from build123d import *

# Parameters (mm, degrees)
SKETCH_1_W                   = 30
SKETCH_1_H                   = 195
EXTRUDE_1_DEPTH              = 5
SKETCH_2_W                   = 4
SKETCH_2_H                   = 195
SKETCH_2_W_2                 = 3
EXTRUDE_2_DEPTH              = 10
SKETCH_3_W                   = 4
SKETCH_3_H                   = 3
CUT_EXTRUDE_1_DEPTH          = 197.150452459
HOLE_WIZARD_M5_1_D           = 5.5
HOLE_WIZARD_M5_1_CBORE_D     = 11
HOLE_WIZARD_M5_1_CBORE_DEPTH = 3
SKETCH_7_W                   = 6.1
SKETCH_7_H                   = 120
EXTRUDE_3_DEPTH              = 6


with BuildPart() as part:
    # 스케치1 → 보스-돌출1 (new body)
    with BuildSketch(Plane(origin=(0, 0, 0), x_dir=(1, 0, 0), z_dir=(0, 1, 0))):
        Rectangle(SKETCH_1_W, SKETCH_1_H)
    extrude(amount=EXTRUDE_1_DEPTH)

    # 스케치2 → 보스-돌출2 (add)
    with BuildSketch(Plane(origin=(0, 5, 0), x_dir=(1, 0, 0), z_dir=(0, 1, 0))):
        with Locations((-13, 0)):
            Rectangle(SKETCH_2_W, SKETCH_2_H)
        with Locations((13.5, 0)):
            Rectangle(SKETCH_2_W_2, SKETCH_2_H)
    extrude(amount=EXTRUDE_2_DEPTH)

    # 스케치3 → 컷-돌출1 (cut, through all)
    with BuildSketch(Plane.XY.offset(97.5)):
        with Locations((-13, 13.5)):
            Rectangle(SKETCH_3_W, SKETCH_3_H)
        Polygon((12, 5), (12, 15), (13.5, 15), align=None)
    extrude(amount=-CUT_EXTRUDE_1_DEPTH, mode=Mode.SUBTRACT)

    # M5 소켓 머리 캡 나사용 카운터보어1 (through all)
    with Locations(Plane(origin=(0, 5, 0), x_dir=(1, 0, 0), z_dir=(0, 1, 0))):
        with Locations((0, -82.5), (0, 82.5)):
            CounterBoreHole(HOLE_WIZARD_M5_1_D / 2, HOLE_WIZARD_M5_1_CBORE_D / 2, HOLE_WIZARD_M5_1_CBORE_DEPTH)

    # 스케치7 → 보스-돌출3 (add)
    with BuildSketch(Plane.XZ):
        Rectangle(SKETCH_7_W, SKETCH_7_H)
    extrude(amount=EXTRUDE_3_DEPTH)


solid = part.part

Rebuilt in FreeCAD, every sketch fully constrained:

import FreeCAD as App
import Part
import Sketcher
from FreeCAD import Vector

doc = App.newDocument("Part")
body = doc.addObject("PartDesign::Body", "Body")

# Sketch on XZ plane
sketch1 = body.newObject("Sketcher::SketchObject", "Sketch")
sketch1.AttachmentSupport = (doc.getObject("XZ_Plane"), [""])
sketch1.MapMode = "FlatFace"
sketch1.addGeometry([
    Part.LineSegment(Vector(-15, -98, 0), Vector(-15, 98, 0)),
    Part.LineSegment(Vector(-15, 98, 0), Vector(15, 98, 0)),
    Part.LineSegment(Vector(15, 98, 0), Vector(15, -98, 0)),
    Part.LineSegment(Vector(15, -98, 0), Vector(-15, -98, 0)),
], False)
sketch1.addConstraint([
    Sketcher.Constraint("Coincident", 0, 2, 1, 1),
    Sketcher.Constraint("Coincident", 1, 2, 2, 1),
    Sketcher.Constraint("Coincident", 2, 2, 3, 1),
    Sketcher.Constraint("Coincident", 3, 2, 0, 1),
    Sketcher.Constraint("Vertical", 0),
    Sketcher.Constraint("Horizontal", 1),
    Sketcher.Constraint("Vertical", 2),
    Sketcher.Constraint("Horizontal", 3),
    Sketcher.Constraint("Symmetric", 0, 2, 2, 2, -1, 1),
    Sketcher.Constraint("DistanceX", 1, 1, 1, 2, 30.0),
    Sketcher.Constraint("DistanceY", 0, 1, 0, 2, 195.0),
])
pad1 = body.newObject("PartDesign::Pad", "Pad")
pad1.Profile = sketch1
pad1.Length = 5
pad1.Reversed = True

# Sketch on XZ plane
sketch2 = body.newObject("Sketcher::SketchObject", "Sketch001")
sketch2.AttachmentSupport = (doc.getObject("XZ_Plane"), [""])
sketch2.MapMode = "FlatFace"
sketch2.AttachmentOffset = App.Placement(Vector(0, 0, -5), App.Rotation())
sketch2.addGeometry([
    Part.LineSegment(Vector(-15, -97.5, 0), Vector(-15, 97.5, 0)),  # 0
    Part.LineSegment(Vector(-15, 97.5, 0), Vector(-11, 97.5, 0)),  # 1
    Part.LineSegment(Vector(-11, 97.5, 0), Vector(-11, -97.5, 0)),  # 2
    Part.LineSegment(Vector(-11, -97.5, 0), Vector(-15, -97.5, 0)),  # 3
    Part.LineSegment(Vector(12, -97.5, 0), Vector(12, 97.5, 0)),  # 4
    Part.LineSegment(Vector(12, 97.5, 0), Vector(15, 97.5, 0)),  # 5
    Part.LineSegment(Vector(15, 97.5, 0), Vector(15, -97.5, 0)),  # 6
    Part.LineSegment(Vector(15, -97.5, 0), Vector(12, -97.5, 0)),  # 7
], False)
sketch2.addConstraint([
    Sketcher.Constraint("Coincident", 0, 2, 1, 1),
    Sketcher.Constraint("Coincident", 1, 2, 2, 1),
    Sketcher.Constraint("Coincident", 2, 2, 3, 1),
    Sketcher.Constraint("Coincident", 3, 2, 0, 1),
    Sketcher.Constraint("Coincident", 4, 2, 5, 1),
    Sketcher.Constraint("Coincident", 5, 2, 6, 1),
    Sketcher.Constraint("Coincident", 6, 2, 7, 1),
    Sketcher.Constraint("Coincident", 7, 2, 4, 1),
    Sketcher.Constraint("Vertical", 0),
    Sketcher.Constraint("Horizontal", 1),
    Sketcher.Constraint("Vertical", 2),
    Sketcher.Constraint("Horizontal", 3),
    Sketcher.Constraint("Vertical", 4),
    Sketcher.Constraint("Horizontal", 5),
    Sketcher.Constraint("Vertical", 6),
    Sketcher.Constraint("Horizontal", 7),
    Sketcher.Constraint("Symmetric", 3, 2, 5, 2, -1, 1),
    Sketcher.Constraint("Horizontal", 1, 2, 4, 2),
    Sketcher.Constraint("Horizontal", 3, 2, 6, 2),
    Sketcher.Constraint("DistanceX", 1, 1, 1, 2, 4.0),
    Sketcher.Constraint("DistanceX", 5, 1, 5, 2, 3.0),
    Sketcher.Constraint("DistanceY", 0, 1, 0, 2, 195.0),
    Sketcher.Constraint("DistanceX", 0, 2, -1, 1, 15.0),
])
pad2 = body.newObject("PartDesign::Pad", "Pad001")
pad2.Profile = sketch2
pad2.Length = 10
pad2.Reversed = True

# Sketch on XY plane
sketch3 = body.newObject("Sketcher::SketchObject", "Sketch002")
sketch3.AttachmentSupport = (doc.getObject("XY_Plane"), [""])
sketch3.MapMode = "FlatFace"
sketch3.AttachmentOffset = App.Placement(Vector(0, 0, 97.5), App.Rotation())
sketch3.addGeometry([
    Part.LineSegment(Vector(-15, 15, 0), Vector(-15, 12, 0)),  # 0
    Part.LineSegment(Vector(-15, 12, 0), Vector(-11, 12, 0)),  # 1
    Part.LineSegment(Vector(-11, 12, 0), Vector(-11, 15, 0)),  # 2
    Part.LineSegment(Vector(-11, 15, 0), Vector(-15, 15, 0)),  # 3
    Part.LineSegment(Vector(12, 15, 0), Vector(12, 5, 0)),  # 4
    Part.LineSegment(Vector(12, 5, 0), Vector(13.5, 15, 0)),  # 5
    Part.LineSegment(Vector(13.5, 15, 0), Vector(12, 15, 0)),  # 6
], False)
sketch3.addConstraint([
    Sketcher.Constraint("Coincident", 0, 2, 1, 1),
    Sketcher.Constraint("Coincident", 1, 2, 2, 1),
    Sketcher.Constraint("Coincident", 2, 2, 3, 1),
    Sketcher.Constraint("Coincident", 3, 2, 0, 1),
    Sketcher.Constraint("Coincident", 4, 2, 5, 1),
    Sketcher.Constraint("Coincident", 5, 2, 6, 1),
    Sketcher.Constraint("Coincident", 6, 2, 4, 1),
    Sketcher.Constraint("Vertical", 0),
    Sketcher.Constraint("Horizontal", 1),
    Sketcher.Constraint("Vertical", 2),
    Sketcher.Constraint("Horizontal", 3),
    Sketcher.Constraint("Vertical", 4),
    Sketcher.Constraint("Horizontal", 6),
    Sketcher.Constraint("Horizontal", 3, 2, 5, 2),
    Sketcher.Constraint("DistanceX", 1, 1, 1, 2, 4.0),
    Sketcher.Constraint("DistanceY", 0, 2, 0, 1, 3.0),
    Sketcher.Constraint("DistanceY", 4, 2, 4, 1, 10.0),
    Sketcher.Constraint("DistanceX", 6, 2, 6, 1, 1.5),
    Sketcher.Constraint("DistanceX", 0, 2, -1, 1, 15.0),
    Sketcher.Constraint("DistanceY", -1, 1, 0, 2, 12.0),
    Sketcher.Constraint("DistanceX", -1, 1, 4, 2, 12.0),
])
pocket1 = body.newObject("PartDesign::Pocket", "Pocket")
pocket1.Profile = sketch3
pocket1.Type = "ThroughAll"

# Sketch on XZ plane
sketch4 = body.newObject("Sketcher::SketchObject", "Sketch003")
sketch4.AttachmentSupport = (doc.getObject("XZ_Plane"), [""])
sketch4.MapMode = "FlatFace"
sketch4.AttachmentOffset = App.Placement(Vector(0, 0, -5), App.Rotation())
sketch4.addGeometry([
    Part.Circle(Vector(0, 82.5, 0), Vector(0, 0, 1), 2.8),
    Part.Circle(Vector(0, -82.5, 0), Vector(0, 0, 1), 2.8),
], False)
sketch4.addConstraint([
    Sketcher.Constraint("Equal", 0, 1),
    Sketcher.Constraint("Symmetric", 0, 3, 1, 3, -1, 1),
    Sketcher.Constraint("PointOnObject", 0, 3, -2),
    Sketcher.Constraint("Diameter", 0, 5.5),
    Sketcher.Constraint("DistanceY", 1, 3, 0, 3, 165.0),
])
doc.recompute()
hole = body.newObject("PartDesign::Hole", "Hole")
hole.Profile = sketch4
hole.ThreadType = "None"
hole.Diameter = 5.5
hole.DepthType = "ThroughAll"
hole.HoleCutType = "Counterbore"
hole.HoleCutDiameter = 11
hole.HoleCutDepth = 3
hole.Reversed = True

# Sketch on XZ plane
sketch5 = body.newObject("Sketcher::SketchObject", "Sketch004")
sketch5.AttachmentSupport = (doc.getObject("XZ_Plane"), [""])
sketch5.MapMode = "FlatFace"
sketch5.addGeometry([
    Part.LineSegment(Vector(-3, 60, 0), Vector(-3, -60, 0)),
    Part.LineSegment(Vector(-3, -60, 0), Vector(3, -60, 0)),
    Part.LineSegment(Vector(3, -60, 0), Vector(3, 60, 0)),
    Part.LineSegment(Vector(3, 60, 0), Vector(-3, 60, 0)),
], False)
sketch5.addConstraint([
    Sketcher.Constraint("Coincident", 0, 2, 1, 1),
    Sketcher.Constraint("Coincident", 1, 2, 2, 1),
    Sketcher.Constraint("Coincident", 2, 2, 3, 1),
    Sketcher.Constraint("Coincident", 3, 2, 0, 1),
    Sketcher.Constraint("Vertical", 0),
    Sketcher.Constraint("Horizontal", 1),
    Sketcher.Constraint("Vertical", 2),
    Sketcher.Constraint("Horizontal", 3),
    Sketcher.Constraint("Symmetric", 0, 2, 2, 2, -1, 1),
    Sketcher.Constraint("DistanceY", 0, 2, 0, 1, 120.0),
    Sketcher.Constraint("DistanceX", 1, 1, 1, 2, 6.1),
])
pad3 = body.newObject("PartDesign::Pad", "Pad002")
pad3.Profile = sketch5
pad3.Length = 6

doc.recompute()
